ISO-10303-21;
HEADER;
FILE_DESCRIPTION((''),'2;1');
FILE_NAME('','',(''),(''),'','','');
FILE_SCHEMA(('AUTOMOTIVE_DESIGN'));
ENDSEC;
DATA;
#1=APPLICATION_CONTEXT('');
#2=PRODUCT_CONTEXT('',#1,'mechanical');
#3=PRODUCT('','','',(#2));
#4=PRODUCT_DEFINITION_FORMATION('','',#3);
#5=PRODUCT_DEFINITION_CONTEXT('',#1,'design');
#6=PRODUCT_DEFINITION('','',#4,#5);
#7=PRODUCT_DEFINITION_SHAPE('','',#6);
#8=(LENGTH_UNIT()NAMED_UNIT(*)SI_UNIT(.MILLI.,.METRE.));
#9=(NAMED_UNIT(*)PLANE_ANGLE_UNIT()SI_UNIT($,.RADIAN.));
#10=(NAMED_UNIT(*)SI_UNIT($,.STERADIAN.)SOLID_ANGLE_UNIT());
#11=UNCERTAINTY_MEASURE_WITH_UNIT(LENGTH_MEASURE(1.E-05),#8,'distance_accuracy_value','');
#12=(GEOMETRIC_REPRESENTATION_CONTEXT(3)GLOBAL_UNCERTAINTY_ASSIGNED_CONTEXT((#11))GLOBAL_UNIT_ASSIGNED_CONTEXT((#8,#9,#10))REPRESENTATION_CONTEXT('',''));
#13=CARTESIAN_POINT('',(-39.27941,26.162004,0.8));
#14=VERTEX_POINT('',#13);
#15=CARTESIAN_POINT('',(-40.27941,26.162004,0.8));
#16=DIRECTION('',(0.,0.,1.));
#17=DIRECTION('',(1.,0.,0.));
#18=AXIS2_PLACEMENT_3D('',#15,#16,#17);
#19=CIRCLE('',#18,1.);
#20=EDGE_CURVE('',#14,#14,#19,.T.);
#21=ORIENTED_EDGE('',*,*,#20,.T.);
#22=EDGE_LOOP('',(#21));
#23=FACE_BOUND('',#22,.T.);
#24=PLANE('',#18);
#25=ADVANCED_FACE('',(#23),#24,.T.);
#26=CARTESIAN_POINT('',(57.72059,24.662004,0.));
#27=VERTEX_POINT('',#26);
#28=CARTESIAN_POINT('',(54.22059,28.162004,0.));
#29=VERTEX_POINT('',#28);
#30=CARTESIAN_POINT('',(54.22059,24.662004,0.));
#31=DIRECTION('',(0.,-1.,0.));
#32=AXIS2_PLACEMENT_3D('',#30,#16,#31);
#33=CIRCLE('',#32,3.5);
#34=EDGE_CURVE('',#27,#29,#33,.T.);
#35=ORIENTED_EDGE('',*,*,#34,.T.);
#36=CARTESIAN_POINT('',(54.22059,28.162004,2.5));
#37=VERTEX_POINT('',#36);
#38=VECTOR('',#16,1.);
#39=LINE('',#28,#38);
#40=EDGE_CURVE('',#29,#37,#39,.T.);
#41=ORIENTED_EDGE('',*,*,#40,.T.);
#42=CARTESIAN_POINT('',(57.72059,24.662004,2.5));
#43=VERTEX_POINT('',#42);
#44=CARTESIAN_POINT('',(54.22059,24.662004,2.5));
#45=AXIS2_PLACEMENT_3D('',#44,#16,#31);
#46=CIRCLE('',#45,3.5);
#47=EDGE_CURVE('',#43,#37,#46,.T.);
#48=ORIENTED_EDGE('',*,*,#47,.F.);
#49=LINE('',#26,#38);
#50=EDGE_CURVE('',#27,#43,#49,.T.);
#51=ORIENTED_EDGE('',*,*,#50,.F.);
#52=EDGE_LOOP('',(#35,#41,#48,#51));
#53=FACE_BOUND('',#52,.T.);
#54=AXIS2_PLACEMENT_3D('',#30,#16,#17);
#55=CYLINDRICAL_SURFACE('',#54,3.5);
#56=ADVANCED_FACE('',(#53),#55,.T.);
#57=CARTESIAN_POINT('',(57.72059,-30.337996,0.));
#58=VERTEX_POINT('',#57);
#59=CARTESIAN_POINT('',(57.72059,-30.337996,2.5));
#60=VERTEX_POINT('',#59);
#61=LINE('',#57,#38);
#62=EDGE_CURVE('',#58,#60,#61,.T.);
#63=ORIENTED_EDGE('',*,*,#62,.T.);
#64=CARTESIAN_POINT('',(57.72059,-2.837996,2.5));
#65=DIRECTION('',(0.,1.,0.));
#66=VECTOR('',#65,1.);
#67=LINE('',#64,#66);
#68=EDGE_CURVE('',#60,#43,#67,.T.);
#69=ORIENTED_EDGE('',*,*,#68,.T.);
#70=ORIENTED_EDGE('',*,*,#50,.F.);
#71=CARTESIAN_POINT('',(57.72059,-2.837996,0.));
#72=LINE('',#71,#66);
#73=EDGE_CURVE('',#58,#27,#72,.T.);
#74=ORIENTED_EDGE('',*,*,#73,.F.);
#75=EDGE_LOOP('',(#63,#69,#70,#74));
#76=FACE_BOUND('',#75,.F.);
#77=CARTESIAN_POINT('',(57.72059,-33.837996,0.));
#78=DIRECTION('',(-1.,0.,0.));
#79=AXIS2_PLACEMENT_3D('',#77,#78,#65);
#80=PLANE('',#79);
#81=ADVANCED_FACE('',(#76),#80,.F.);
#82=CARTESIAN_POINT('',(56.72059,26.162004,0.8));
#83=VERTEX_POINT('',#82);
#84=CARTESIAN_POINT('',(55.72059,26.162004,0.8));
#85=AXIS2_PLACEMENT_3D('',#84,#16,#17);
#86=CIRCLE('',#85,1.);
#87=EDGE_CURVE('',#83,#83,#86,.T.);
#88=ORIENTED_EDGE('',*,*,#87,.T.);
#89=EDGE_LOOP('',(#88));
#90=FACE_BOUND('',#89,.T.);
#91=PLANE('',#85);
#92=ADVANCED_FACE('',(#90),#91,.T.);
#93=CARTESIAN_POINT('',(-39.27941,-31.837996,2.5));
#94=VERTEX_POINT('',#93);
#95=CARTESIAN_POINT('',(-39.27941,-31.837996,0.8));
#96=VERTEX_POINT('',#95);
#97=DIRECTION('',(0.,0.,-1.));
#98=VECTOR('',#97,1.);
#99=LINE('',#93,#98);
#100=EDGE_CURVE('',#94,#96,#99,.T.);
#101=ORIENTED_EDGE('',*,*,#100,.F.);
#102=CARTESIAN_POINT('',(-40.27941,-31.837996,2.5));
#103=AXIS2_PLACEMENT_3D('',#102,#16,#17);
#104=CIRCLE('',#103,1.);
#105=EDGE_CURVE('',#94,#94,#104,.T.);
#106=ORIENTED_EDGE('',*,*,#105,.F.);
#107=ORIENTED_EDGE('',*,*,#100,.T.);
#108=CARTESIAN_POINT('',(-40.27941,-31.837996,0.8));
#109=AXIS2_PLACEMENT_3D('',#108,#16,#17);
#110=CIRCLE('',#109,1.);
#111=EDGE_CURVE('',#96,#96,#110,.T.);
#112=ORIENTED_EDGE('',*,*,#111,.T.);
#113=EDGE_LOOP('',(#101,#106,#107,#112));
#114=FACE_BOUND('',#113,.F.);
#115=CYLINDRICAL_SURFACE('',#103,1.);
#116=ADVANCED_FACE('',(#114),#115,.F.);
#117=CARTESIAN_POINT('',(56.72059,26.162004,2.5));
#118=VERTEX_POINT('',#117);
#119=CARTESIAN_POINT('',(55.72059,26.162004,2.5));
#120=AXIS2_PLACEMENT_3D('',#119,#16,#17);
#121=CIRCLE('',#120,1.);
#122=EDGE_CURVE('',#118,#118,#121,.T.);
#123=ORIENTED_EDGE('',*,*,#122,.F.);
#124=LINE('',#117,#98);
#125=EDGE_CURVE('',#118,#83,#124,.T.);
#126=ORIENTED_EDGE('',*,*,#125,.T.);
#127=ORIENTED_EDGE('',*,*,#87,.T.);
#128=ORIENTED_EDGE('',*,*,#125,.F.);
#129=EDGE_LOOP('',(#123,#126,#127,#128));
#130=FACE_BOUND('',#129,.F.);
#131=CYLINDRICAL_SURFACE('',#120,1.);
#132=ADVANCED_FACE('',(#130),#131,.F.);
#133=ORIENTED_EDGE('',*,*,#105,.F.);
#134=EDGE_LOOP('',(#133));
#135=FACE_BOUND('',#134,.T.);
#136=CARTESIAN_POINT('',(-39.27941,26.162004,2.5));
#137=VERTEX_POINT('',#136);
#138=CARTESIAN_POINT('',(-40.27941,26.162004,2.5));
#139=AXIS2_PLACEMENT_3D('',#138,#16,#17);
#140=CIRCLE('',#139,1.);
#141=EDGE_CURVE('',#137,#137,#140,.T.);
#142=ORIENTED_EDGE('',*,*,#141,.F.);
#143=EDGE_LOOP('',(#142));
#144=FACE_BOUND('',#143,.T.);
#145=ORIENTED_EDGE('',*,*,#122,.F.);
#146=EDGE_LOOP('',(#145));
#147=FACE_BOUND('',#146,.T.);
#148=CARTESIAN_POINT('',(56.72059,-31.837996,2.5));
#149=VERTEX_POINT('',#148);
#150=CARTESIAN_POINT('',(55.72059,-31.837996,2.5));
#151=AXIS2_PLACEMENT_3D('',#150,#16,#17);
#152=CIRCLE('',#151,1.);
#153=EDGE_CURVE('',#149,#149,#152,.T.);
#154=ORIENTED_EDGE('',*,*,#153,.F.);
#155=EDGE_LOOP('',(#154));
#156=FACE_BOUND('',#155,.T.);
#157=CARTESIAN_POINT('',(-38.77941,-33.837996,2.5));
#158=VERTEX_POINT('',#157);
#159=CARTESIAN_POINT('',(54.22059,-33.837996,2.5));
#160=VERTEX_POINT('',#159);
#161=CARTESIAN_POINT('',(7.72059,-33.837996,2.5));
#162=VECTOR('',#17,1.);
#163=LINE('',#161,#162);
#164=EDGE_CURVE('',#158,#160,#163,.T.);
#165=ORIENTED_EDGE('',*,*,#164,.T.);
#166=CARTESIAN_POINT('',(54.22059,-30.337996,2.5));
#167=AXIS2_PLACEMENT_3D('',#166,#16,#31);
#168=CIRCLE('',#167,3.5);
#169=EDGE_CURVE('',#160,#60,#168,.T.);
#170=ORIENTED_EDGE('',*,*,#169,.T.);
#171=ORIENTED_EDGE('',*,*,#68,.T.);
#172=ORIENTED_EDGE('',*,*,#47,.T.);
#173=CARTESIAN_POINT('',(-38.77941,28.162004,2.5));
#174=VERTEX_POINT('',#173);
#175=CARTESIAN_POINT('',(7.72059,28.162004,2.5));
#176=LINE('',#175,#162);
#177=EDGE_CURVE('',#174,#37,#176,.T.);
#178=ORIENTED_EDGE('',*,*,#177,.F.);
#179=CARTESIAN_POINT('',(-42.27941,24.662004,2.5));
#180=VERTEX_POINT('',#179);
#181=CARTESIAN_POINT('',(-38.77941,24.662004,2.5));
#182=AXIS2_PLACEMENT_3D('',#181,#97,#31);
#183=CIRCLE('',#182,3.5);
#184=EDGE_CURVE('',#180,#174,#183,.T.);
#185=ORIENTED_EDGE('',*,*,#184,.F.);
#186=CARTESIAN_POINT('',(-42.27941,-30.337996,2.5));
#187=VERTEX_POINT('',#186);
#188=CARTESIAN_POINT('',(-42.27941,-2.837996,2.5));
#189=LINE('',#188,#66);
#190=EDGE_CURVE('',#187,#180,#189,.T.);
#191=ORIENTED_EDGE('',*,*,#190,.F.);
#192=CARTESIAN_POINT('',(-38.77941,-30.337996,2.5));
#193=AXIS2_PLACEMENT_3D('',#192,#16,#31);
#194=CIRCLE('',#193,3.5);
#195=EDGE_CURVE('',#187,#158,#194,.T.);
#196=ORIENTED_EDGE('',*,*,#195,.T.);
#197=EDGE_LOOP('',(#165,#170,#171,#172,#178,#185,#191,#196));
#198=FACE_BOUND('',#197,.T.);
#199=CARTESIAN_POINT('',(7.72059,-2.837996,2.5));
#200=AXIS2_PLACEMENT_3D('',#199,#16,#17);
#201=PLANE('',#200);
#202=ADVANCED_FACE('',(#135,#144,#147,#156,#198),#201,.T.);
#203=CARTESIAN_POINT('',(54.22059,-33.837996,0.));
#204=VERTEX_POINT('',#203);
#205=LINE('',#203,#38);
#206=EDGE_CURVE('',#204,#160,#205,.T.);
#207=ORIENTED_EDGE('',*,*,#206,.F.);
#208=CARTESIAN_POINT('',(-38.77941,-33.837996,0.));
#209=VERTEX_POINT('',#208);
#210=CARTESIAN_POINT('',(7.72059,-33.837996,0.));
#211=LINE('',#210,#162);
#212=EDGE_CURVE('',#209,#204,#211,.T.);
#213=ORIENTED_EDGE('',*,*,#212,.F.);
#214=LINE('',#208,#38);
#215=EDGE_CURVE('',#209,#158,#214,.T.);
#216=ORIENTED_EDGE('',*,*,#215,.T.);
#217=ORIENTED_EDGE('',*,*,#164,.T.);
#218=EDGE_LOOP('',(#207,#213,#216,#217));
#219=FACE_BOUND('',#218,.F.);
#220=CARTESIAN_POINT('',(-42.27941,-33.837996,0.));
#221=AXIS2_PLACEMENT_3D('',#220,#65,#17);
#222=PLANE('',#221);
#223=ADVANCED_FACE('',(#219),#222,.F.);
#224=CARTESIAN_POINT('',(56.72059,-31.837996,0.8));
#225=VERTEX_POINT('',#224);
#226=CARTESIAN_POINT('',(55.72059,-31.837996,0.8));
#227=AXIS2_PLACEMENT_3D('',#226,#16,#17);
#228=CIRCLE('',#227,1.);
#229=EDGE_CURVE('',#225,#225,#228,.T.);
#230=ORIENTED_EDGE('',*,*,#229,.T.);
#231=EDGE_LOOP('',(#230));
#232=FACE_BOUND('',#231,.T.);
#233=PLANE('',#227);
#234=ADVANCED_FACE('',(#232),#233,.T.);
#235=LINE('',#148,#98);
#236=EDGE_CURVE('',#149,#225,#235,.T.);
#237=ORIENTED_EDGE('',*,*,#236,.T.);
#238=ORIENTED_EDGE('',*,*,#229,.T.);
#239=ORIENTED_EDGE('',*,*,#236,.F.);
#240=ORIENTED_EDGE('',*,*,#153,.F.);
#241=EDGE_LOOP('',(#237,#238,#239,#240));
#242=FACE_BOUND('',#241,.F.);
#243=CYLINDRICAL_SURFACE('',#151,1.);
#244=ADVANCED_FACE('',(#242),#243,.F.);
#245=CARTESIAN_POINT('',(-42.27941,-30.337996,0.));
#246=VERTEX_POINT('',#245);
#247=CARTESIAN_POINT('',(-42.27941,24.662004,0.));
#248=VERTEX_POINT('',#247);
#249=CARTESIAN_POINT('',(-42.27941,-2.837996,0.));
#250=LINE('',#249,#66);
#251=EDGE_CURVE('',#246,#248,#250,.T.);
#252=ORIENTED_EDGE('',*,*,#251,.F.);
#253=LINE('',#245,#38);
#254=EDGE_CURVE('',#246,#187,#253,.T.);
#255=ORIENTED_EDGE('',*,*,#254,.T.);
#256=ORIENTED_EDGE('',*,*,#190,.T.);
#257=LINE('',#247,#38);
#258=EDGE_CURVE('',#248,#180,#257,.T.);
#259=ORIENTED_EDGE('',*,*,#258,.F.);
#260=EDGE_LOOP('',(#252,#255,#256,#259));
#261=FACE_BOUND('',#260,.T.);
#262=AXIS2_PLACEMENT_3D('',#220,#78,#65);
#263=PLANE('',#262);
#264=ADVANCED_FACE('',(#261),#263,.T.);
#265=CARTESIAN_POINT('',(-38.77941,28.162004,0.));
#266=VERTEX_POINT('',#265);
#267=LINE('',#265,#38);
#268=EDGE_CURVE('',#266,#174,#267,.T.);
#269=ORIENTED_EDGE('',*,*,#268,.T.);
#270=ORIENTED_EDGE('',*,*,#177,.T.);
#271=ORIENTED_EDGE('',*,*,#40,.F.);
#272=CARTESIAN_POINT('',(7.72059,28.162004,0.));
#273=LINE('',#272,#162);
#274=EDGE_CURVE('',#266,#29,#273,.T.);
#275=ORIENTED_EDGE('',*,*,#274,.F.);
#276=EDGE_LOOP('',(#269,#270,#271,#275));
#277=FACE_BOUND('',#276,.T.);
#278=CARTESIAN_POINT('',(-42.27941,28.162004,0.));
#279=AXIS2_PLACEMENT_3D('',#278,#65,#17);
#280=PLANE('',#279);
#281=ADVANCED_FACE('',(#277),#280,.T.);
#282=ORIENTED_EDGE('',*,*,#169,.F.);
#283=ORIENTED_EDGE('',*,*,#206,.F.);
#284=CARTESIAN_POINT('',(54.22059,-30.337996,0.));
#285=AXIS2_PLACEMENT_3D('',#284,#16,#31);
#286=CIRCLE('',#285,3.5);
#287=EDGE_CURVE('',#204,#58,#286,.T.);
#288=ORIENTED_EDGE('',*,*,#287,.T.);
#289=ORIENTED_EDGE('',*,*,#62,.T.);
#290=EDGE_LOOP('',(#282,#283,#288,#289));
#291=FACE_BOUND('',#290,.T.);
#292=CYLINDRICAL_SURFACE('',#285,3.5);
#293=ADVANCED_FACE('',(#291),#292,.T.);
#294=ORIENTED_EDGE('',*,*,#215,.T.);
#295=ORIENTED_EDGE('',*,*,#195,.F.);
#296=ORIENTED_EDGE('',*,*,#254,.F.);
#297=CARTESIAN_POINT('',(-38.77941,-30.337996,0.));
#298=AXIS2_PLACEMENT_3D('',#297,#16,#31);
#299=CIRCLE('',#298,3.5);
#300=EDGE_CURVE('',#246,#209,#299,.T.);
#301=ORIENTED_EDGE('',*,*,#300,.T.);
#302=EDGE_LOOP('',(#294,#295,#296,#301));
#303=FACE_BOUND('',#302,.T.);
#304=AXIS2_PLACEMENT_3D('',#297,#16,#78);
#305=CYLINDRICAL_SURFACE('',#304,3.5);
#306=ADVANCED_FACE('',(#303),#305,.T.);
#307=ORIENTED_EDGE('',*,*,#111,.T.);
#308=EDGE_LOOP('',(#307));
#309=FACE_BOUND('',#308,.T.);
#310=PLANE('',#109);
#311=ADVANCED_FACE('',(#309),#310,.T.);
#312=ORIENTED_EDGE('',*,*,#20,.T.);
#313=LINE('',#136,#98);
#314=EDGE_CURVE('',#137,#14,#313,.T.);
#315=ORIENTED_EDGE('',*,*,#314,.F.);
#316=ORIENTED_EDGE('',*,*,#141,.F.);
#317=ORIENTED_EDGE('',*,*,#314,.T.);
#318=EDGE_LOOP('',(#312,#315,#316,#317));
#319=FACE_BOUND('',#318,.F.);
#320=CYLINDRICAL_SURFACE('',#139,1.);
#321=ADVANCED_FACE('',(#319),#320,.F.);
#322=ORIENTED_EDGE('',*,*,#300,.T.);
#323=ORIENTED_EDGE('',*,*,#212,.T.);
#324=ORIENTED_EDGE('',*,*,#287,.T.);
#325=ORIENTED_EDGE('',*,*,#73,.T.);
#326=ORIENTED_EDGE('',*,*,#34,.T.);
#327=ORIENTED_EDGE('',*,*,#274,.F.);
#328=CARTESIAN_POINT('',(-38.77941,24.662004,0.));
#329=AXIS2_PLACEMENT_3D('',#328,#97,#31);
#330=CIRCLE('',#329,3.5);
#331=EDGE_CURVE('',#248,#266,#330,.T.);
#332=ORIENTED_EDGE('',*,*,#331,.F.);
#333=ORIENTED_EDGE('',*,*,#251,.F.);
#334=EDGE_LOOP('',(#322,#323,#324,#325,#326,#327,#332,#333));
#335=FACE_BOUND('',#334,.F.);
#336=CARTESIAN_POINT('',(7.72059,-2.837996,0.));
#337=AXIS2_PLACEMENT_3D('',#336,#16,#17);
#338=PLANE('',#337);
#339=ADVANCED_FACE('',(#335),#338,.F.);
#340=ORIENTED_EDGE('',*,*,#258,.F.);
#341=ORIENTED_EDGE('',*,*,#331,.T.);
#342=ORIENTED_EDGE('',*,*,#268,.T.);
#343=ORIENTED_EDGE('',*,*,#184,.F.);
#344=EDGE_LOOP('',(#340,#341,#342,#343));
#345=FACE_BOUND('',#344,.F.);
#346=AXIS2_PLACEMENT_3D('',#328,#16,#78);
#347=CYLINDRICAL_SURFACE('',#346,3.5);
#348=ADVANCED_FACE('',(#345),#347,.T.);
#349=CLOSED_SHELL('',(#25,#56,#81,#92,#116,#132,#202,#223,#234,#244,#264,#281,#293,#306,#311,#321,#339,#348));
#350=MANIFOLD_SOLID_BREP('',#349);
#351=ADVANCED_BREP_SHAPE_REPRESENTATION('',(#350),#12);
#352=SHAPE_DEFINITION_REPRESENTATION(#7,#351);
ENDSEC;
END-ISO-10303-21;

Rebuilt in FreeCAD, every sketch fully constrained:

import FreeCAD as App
import Part
import Sketcher
from FreeCAD import Vector


def edges_at(feature, points):
    """Names of the edges that pass closest to the given points."""
    edges = feature.Shape.Edges
    near = lambda p: min(range(len(edges)), key=lambda i: edges[i].distToShape(Part.Vertex(*p))[0])
    return sorted({f"Edge{near(p) + 1}" for p in points})


def add_polygon(sketch, points):
    """Adds a closed chain of lines whose ends are joined by coincident constraints."""
    first, n = sketch.GeometryCount, len(points)
    for a, b in zip(points, points[1:] + points[:1]):
        sketch.addGeometry(Part.LineSegment(App.Vector(*a, 0), App.Vector(*b, 0)), False)
    for i in range(n):
        sketch.addConstraint(Sketcher.Constraint("Coincident", first + i, 2, first + (i + 1) % n, 1))

doc = App.newDocument("Part")
body = doc.addObject("PartDesign::Body", "Body")

# Sketch on XY plane
sketch1 = body.newObject("Sketcher::SketchObject", "Sketch")
sketch1.AttachmentSupport = (doc.getObject("XY_Plane"), [""])
sketch1.MapMode = "FlatFace"
add_polygon(sketch1, [(-42, 28), (-42, -34), (58, -34), (58, 28)])  # lines 0-3
sketch1.addConstraint(Sketcher.Constraint("Vertical", 0))
sketch1.addConstraint(Sketcher.Constraint("Horizontal", 1))
sketch1.addConstraint(Sketcher.Constraint("Vertical", 2))
sketch1.addConstraint(Sketcher.Constraint("Horizontal", 3))
sketch1.addConstraint(Sketcher.Constraint("DistanceX", 1, 1, 1, 2, 100.0))
sketch1.addConstraint(Sketcher.Constraint("DistanceY", 0, 2, 0, 1, 62.0))
sketch1.addConstraint(Sketcher.Constraint("DistanceX", 0, 2, -1, 1, 42.27941))
sketch1.addConstraint(Sketcher.Constraint("DistanceY", 0, 2, -1, 1, 33.837996))
pad1 = body.newObject("PartDesign::Pad", "Pad")
pad1.Profile = sketch1
pad1.Length = 2.5
doc.recompute()

fillet = body.newObject("PartDesign::Fillet", "Fillet")
fillet.Base = (pad1, edges_at(pad1, [
    (-42.279, -33.838, 1.25),
    (-42.279, 28.162, 1.25),
    (57.721, 28.162, 1.25),
    (57.721, -33.838, 1.25),
]))
fillet.Radius = 3.5

# Sketch on XY plane
sketch2 = body.newObject("Sketcher::SketchObject", "Sketch001")
sketch2.AttachmentSupport = (doc.getObject("XY_Plane"), [""])
sketch2.MapMode = "FlatFace"
sketch2.AttachmentOffset = App.Placement(Vector(0, 0, 2.5), App.Rotation())
sketch2.addGeometry(Part.Circle(Vector(-40.3, 26.2, 0), Vector(0, 0, 1), 1), False)
sketch2.addGeometry(Part.Circle(Vector(-40.3, -31.8, 0), Vector(0, 0, 1), 1), False)
sketch2.addGeometry(Part.Circle(Vector(55.7, 26.2, 0), Vector(0, 0, 1), 1), False)
sketch2.addGeometry(Part.Circle(Vector(55.7, -31.8, 0), Vector(0, 0, 1), 1), False)
sketch2.addConstraint(Sketcher.Constraint("Equal", 0, 1))
sketch2.addConstraint(Sketcher.Constraint("Equal", 1, 2))
sketch2.addConstraint(Sketcher.Constraint("Equal", 2, 3))
sketch2.addConstraint(Sketcher.Constraint("Horizontal", 0, 3, 2, 3))
sketch2.addConstraint(Sketcher.Constraint("Horizontal", 1, 3, 3, 3))
sketch2.addConstraint(Sketcher.Constraint("Vertical", 0, 3, 1, 3))
sketch2.addConstraint(Sketcher.Constraint("Vertical", 2, 3, 3, 3))
sketch2.addConstraint(Sketcher.Constraint("Diameter", 0, 2.0))
sketch2.addConstraint(Sketcher.Constraint("DistanceY", 1, 3, 0, 3, 58.0))
sketch2.addConstraint(Sketcher.Constraint("DistanceX", 0, 3, 2, 3, 96.0))
sketch2.addConstraint(Sketcher.Constraint("DistanceX", 0, 3, -1, 1, 40.27941))
sketch2.addConstraint(Sketcher.Constraint("DistanceY", -1, 1, 0, 3, 26.162004))
pocket1 = body.newObject("PartDesign::Pocket", "Pocket")
pocket1.Profile = sketch2
pocket1.Length = 1.7

doc.recompute()
